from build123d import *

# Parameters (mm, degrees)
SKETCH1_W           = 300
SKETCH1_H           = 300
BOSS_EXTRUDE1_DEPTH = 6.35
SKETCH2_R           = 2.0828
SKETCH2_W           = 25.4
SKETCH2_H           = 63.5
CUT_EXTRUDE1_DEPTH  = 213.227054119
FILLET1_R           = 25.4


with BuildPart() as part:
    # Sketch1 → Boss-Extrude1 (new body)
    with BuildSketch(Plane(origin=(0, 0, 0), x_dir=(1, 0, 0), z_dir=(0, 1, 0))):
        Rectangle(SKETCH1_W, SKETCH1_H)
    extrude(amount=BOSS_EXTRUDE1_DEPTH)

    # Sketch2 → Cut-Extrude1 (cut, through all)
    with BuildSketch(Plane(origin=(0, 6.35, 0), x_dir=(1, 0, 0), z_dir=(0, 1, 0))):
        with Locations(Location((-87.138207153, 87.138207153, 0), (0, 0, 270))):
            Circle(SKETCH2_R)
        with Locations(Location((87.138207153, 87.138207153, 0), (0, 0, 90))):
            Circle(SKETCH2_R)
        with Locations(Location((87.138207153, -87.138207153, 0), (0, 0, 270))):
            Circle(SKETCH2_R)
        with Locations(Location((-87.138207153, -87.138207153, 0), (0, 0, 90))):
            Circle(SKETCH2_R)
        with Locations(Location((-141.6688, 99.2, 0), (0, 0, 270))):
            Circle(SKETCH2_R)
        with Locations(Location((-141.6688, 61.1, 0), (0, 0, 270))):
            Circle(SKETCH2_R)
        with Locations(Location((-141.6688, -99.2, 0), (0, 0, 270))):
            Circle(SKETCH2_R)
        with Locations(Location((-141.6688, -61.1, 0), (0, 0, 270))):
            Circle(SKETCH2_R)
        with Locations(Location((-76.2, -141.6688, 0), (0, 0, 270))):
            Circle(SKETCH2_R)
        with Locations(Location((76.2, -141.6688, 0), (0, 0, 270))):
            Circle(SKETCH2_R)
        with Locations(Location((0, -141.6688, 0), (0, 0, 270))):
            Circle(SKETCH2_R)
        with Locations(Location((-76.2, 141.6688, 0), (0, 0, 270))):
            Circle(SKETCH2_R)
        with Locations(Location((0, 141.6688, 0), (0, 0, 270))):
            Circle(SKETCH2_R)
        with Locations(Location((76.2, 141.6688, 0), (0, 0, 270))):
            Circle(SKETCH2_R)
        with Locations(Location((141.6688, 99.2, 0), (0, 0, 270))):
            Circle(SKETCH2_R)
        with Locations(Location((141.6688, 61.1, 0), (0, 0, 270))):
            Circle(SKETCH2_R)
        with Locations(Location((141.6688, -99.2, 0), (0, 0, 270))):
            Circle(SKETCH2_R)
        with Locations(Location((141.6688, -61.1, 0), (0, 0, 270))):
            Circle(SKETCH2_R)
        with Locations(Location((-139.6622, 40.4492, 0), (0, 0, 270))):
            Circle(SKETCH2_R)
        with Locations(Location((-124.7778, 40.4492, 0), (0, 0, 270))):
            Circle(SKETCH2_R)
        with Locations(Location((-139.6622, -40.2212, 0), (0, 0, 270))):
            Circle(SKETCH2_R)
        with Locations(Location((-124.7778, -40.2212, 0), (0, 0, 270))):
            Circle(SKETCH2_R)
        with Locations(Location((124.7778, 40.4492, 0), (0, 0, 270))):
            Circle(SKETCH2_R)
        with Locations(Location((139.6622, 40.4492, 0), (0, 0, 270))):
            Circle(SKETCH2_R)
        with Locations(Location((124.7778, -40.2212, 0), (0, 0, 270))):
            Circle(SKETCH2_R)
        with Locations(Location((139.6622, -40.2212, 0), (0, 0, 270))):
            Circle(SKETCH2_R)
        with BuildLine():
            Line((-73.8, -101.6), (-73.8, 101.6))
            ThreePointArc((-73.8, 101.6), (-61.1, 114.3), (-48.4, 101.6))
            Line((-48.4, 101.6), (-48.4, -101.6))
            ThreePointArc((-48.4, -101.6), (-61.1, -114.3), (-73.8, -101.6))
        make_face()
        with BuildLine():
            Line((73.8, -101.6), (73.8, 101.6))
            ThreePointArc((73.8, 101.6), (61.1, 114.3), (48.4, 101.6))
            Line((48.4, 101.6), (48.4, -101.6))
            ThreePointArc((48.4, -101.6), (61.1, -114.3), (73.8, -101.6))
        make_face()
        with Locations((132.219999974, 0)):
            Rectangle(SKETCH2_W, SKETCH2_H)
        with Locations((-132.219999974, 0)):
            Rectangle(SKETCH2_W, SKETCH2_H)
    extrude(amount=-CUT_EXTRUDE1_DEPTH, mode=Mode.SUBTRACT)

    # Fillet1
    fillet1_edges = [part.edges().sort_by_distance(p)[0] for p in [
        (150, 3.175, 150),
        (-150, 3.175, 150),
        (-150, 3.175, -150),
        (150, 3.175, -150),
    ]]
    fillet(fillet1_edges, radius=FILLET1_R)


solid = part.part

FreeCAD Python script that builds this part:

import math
import FreeCAD as App
import Part
import Sketcher
from FreeCAD import Vector
Q = App.Units.Quantity


def edges_at(feature, points):
    """Names of the edges that pass closest to the given points."""
    edges = feature.Shape.Edges
    near = lambda p: min(range(len(edges)), key=lambda i: edges[i].distToShape(Part.Vertex(*p))[0])
    return sorted({f"Edge{near(p) + 1}" for p in points})


def add_polygon(sketch, points):
    """Adds a closed chain of lines whose ends are joined by coincident constraints."""
    first, n = sketch.GeometryCount, len(points)
    for a, b in zip(points, points[1:] + points[:1]):
        sketch.addGeometry(Part.LineSegment(App.Vector(*a, 0), App.Vector(*b, 0)), False)
    for i in range(n):
        sketch.addConstraint(Sketcher.Constraint("Coincident", first + i, 2, first + (i + 1) % n, 1))

doc = App.newDocument("Part")
body = doc.addObject("PartDesign::Body", "Body")

sketch1 = body.newObject("Sketcher::SketchObject", "Sketch")
sketch1.AttachmentSupport = (doc.getObject("XZ_Plane"), [""])
sketch1.MapMode = "FlatFace"
add_polygon(sketch1, [(-150, -150), (-150, 150), (150, 150), (150, -150)])
sketch1.addConstraint([
    Sketcher.Constraint("Vertical", 0),
    Sketcher.Constraint("Horizontal", 1),
    Sketcher.Constraint("Vertical", 2),
    Sketcher.Constraint("Horizontal", 3),
    Sketcher.Constraint("Symmetric", 0, 2, 2, 2, -1, 1),
    Sketcher.Constraint("Equal", 3, 0),
    Sketcher.Constraint("DistanceX", 1, 1, 1, 2, Q("300 mm")),
])
pad1 = body.newObject("PartDesign::Pad", "Pad")
pad1.Profile = sketch1
pad1.Length = Q("0.25 in")
pad1.Reversed = True

sketch2 = body.newObject("Sketcher::SketchObject", "Sketch001")
sketch2.AttachmentSupport = (doc.getObject("XZ_Plane"), [""])
sketch2.MapMode = "FlatFace"
sketch2.AttachmentOffset = App.Placement(Vector(0, 0, -0.25 * 25.4), App.Rotation())
sketch2.addGeometry(Part.Circle(Vector(-87.1, -87.1, 0), Vector(0, 0, 1), 2.1), False)
sketch2.addGeometry(Part.Circle(Vector(87.1, -87.1, 0), Vector(0, 0, 1), 2.1), False)
sketch2.addGeometry(Part.Circle(Vector(87.1, 87.1, 0), Vector(0, 0, 1), 2.1), False)
sketch2.addGeometry(Part.Circle(Vector(-87.1, 87.1, 0), Vector(0, 0, 1), 2.1), False)
sketch2.addGeometry(Part.Circle(Vector(-141.7, -99.2, 0), Vector(0, 0, 1), 2.1), False)
sketch2.addGeometry(Part.Circle(Vector(-141.7, -61.1, 0), Vector(0, 0, 1), 2.1), False)
sketch2.addGeometry(Part.Circle(Vector(-141.7, 99.2, 0), Vector(0, 0, 1), 2.1), False)
sketch2.addGeometry(Part.Circle(Vector(-141.7, 61.1, 0), Vector(0, 0, 1), 2.1), False)
sketch2.addGeometry(Part.Circle(Vector(-76.2, 141.7, 0), Vector(0, 0, 1), 2.1), False)
sketch2.addGeometry(Part.Circle(Vector(76.2, 141.7, 0), Vector(0, 0, 1), 2.1), False)
sketch2.addGeometry(Part.Circle(Vector(0, 141.7, 0), Vector(0, 0, 1), 2.1), False)
sketch2.addGeometry(Part.Circle(Vector(-76.2, -141.7, 0), Vector(0, 0, 1), 2.1), False)
sketch2.addGeometry(Part.Circle(Vector(0, -141.7, 0), Vector(0, 0, 1), 2.1), False)
sketch2.addGeometry(Part.Circle(Vector(76.2, -141.7, 0), Vector(0, 0, 1), 2.1), False)
sketch2.addGeometry(Part.Circle(Vector(141.7, -99.2, 0), Vector(0, 0, 1), 2.1), False)
sketch2.addGeometry(Part.Circle(Vector(141.7, -61.1, 0), Vector(0, 0, 1), 2.1), False)
sketch2.addGeometry(Part.Circle(Vector(141.7, 99.2, 0), Vector(0, 0, 1), 2.1), False)
sketch2.addGeometry(Part.Circle(Vector(141.7, 61.1, 0), Vector(0, 0, 1), 2.1), False)
sketch2.addGeometry(Part.Circle(Vector(-139.7, -40.4, 0), Vector(0, 0, 1), 2.1), False)
sketch2.addGeometry(Part.Circle(Vector(-124.8, -40.4, 0), Vector(0, 0, 1), 2.1), False)
sketch2.addGeometry(Part.Circle(Vector(-139.7, 40.2, 0), Vector(0, 0, 1), 2.1), False)
sketch2.addGeometry(Part.Circle(Vector(-124.8, 40.2, 0), Vector(0, 0, 1), 2.1), False)
sketch2.addGeometry(Part.Circle(Vector(124.8, -40.4, 0), Vector(0, 0, 1), 2.1), False)
sketch2.addGeometry(Part.Circle(Vector(139.7, -40.4, 0), Vector(0, 0, 1), 2.1), False)
sketch2.addGeometry(Part.Circle(Vector(124.8, 40.2, 0), Vector(0, 0, 1), 2.1), False)
sketch2.addGeometry(Part.Circle(Vector(139.7, 40.2, 0), Vector(0, 0, 1), 2.1), False)
sketch2.addGeometry(Part.LineSegment(Vector(-73.8, -101.6, 0), Vector(-73.8, 101.6, 0)), False)
sketch2.addGeometry(Part.ArcOfCircle(Part.Circle(Vector(-61.1, 101.6, 0), Vector(0, 0, 1), 12.7), math.radians(0), math.radians(180)), False)
sketch2.addGeometry(Part.LineSegment(Vector(-48.4, 101.6, 0), Vector(-48.4, -101.6, 0)), False)
sketch2.addGeometry(Part.ArcOfCircle(Part.Circle(Vector(-61.1, -101.6, 0), Vector(0, 0, 1), 12.7), math.radians(180), math.radians(360)), False)
sketch2.addGeometry(Part.LineSegment(Vector(73.8, 101.6, 0), Vector(73.8, -101.6, 0)), False)
sketch2.addGeometry(Part.ArcOfCircle(Part.Circle(Vector(61.1, -101.6, 0), Vector(0, 0, 1), 12.7), math.radians(180), math.radians(360)), False)
sketch2.addGeometry(Part.LineSegment(Vector(48.4, -101.6, 0), Vector(48.4, 101.6, 0)), False)
sketch2.addGeometry(Part.ArcOfCircle(Part.Circle(Vector(61.1, 101.6, 0), Vector(0, 0, 1), 12.7), math.radians(0), math.radians(180)), False)
add_polygon(sketch2, [(119.5, -31.8), (119.5, 31.8), (144.9, 31.8), (144.9, -31.8)])
add_polygon(sketch2, [(-144.9, -31.8), (-144.9, 31.8), (-119.5, 31.8), (-119.5, -31.8)])
sketch2.addConstraint([
    Sketcher.Constraint("Tangent", 26, 2, 27, 2),
    Sketcher.Constraint("Tangent", 27, 1, 28, 1),
    Sketcher.Constraint("Tangent", 28, 2, 29, 2),
    Sketcher.Constraint("Tangent", 29, 1, 26, 1),
    Sketcher.Constraint("Tangent", 30, 2, 31, 2),
    Sketcher.Constraint("Tangent", 31, 1, 32, 1),
    Sketcher.Constraint("Tangent", 32, 2, 33, 2),
    Sketcher.Constraint("Tangent", 33, 1, 30, 1),
    Sketcher.Constraint("Vertical", 26),
    Sketcher.Constraint("Vertical", 28),
    Sketcher.Constraint("Vertical", 30),
    Sketcher.Constraint("Vertical", 32),
    Sketcher.Constraint("Vertical", 34),
    Sketcher.Constraint("Horizontal", 35),
    Sketcher.Constraint("Vertical", 36),
    Sketcher.Constraint("Horizontal", 37),
    Sketcher.Constraint("Vertical", 38),
    Sketcher.Constraint("Horizontal", 39),
    Sketcher.Constraint("Vertical", 40),
    Sketcher.Constraint("Horizontal", 41),
    Sketcher.Constraint("Equal", 0, 1),
    Sketcher.Constraint("Equal", 1, 2),
    Sketcher.Constraint("Equal", 2, 3),
    Sketcher.Constraint("Equal", 3, 4),
    Sketcher.Constraint("Equal", 4, 5),
    Sketcher.Constraint("Equal", 5, 6),
    Sketcher.Constraint("Equal", 6, 7),
    Sketcher.Constraint("Equal", 7, 8),
    Sketcher.Constraint("Equal", 8, 9),
    Sketcher.Constraint("Equal", 9, 10),
    Sketcher.Constraint("Equal", 10, 11),
    Sketcher.Constraint("Equal", 11, 12),
    Sketcher.Constraint("Equal", 12, 13),
    Sketcher.Constraint("Equal", 13, 14),
    Sketcher.Constraint("Equal", 14, 15),
    Sketcher.Constraint("Equal", 15, 16),
    Sketcher.Constraint("Equal", 16, 17),
    Sketcher.Constraint("Equal", 17, 18),
    Sketcher.Constraint("Equal", 18, 19),
    Sketcher.Constraint("Equal", 19, 20),
    Sketcher.Constraint("Equal", 20, 21),
    Sketcher.Constraint("Equal", 21, 22),
    Sketcher.Constraint("Equal", 22, 23),
    Sketcher.Constraint("Equal", 23, 24),
    Sketcher.Constraint("Equal", 24, 25),
    Sketcher.Constraint("Equal", 29, 31),
    Sketcher.Constraint("Symmetric", 0, 3, 2, 3, -1, 1),
    Sketcher.Constraint("Symmetric", 1, 3, 3, 3, -1, 1),
    Sketcher.Constraint("Symmetric", 9, 3, 11, 3, -1, 1),
    Sketcher.Constraint("Symmetric", 10, 3, 12, 3, -1, 1),
    Sketcher.Constraint("Symmetric", 8, 3, 13, 3, -1, 1),
    Sketcher.Constraint("Symmetric", 6, 3, 14, 3, -1, 1),
    Sketcher.Constraint("Symmetric", 7, 3, 15, 3, -1, 1),
    Sketcher.Constraint("Symmetric", 4, 3, 16, 3, -1, 1),
    Sketcher.Constraint("Symmetric", 5, 3, 17, 3, -1, 1),
    Sketcher.Constraint("Symmetric", 27, 3, 31, 3, -1, 1),
    Sketcher.Constraint("Symmetric", 36, 2, 38, 2, -1, 1),
    Sketcher.Constraint("Symmetric", 34, 2, 40, 2, -1, 1),
    Sketcher.Constraint("Symmetric", 0, 3, 1, 3, -2),
    Sketcher.Constraint("Symmetric", 8, 3, 9, 3, -2),
    Sketcher.Constraint("Symmetric", 4, 3, 14, 3, -2),
    Sketcher.Constraint("Symmetric", 5, 3, 15, 3, -2),
    Sketcher.Constraint("Symmetric", 19, 3, 22, 3, -2),
    Sketcher.Constraint("Symmetric", 18, 3, 23, 3, -2),
    Sketcher.Constraint("Symmetric", 21, 3, 24, 3, -2),
    Sketcher.Constraint("Symmetric", 20, 3, 25, 3, -2),
    Sketcher.Constraint("PointOnObject", 10, 3, -2),
    Sketcher.Constraint("Horizontal", 9, 3, 10, 3),
    Sketcher.Constraint("Horizontal", 18, 3, 19, 3),
    Sketcher.Constraint("Horizontal", 20, 3, 21, 3),
    Sketcher.Constraint("Horizontal", 29, 3, 31, 3),
    Sketcher.Constraint("Horizontal", 27, 3, 33, 3),
    Sketcher.Constraint("Horizontal", 35, 2, 38, 2),
    Sketcher.Constraint("Vertical", 4, 3, 5, 3),
    Sketcher.Constraint("Vertical", 18, 3, 20, 3),
    Sketcher.Constraint("Vertical", 19, 3, 21, 3),
    Sketcher.Constraint("Radius", 27, Q("0.5 in")),
    Sketcher.Constraint("DistanceX", 35, 1, 35, 2, Q("1 in")),
    Sketcher.Constraint("DistanceY", 26, 1, 26, 2, Q("8 in")),
    Sketcher.Constraint("Diameter", 0, Q("0.164 in")),
    Sketcher.Constraint("DistanceY", 34, 1, 34, 2, Q("2.5 in")),
    Sketcher.Constraint("DistanceX", 8, 3, -1, 1, Q("3 in")),
    Sketcher.Constraint("DistanceY", 4, 3, 5, 3, Q("1.5 in")),
    Sketcher.Constraint("DistanceY", 6, 3, 8, 3, Q("1.672 in")),
    Sketcher.Constraint("DistanceX", 5, 3, 18, 3, Q("0.079 in")),
    Sketcher.Constraint("DistanceY", 18, 3, 7, 3, Q("3.998 in")),
    Sketcher.Constraint("DistanceX", 18, 3, 19, 3, Q("0.586 in")),
    Sketcher.Constraint("DistanceY", 20, 3, 7, 3, Q("0.822 in")),
    Sketcher.Constraint("DistanceX", 6, 3, 27, 3, Q("3.172 in")),
    Sketcher.Constraint("DistanceX", 34, 2, 24, 3, Q("0.207 in")),
    Sketcher.Constraint("DistanceX", 4, 3, -1, 1, Q("141.6688 mm")),
    Sketcher.Constraint("DistanceY", 4, 3, -1, 1, Q("99.2 mm")),
    Sketcher.Constraint("DistanceX", 0, 3, -1, 1, Q("87.138207 mm")),
    Sketcher.Constraint("DistanceY", 0, 3, -1, 1, Q("87.138207 mm")),
])
pocket1 = body.newObject("PartDesign::Pocket", "Pocket")
pocket1.Profile = sketch2
pocket1.Type = "ThroughAll"
pocket1.Reversed = True
doc.recompute()

fillet = body.newObject("PartDesign::Fillet", "Fillet")
fillet.Base = (pocket1, edges_at(pocket1, [
    (150, 3.175, 150),
    (-150, 3.175, 150),
    (-150, 3.175, -150),
    (150, 3.175, -150),
]))
fillet.Radius = Q("1 in")

doc.recompute()
